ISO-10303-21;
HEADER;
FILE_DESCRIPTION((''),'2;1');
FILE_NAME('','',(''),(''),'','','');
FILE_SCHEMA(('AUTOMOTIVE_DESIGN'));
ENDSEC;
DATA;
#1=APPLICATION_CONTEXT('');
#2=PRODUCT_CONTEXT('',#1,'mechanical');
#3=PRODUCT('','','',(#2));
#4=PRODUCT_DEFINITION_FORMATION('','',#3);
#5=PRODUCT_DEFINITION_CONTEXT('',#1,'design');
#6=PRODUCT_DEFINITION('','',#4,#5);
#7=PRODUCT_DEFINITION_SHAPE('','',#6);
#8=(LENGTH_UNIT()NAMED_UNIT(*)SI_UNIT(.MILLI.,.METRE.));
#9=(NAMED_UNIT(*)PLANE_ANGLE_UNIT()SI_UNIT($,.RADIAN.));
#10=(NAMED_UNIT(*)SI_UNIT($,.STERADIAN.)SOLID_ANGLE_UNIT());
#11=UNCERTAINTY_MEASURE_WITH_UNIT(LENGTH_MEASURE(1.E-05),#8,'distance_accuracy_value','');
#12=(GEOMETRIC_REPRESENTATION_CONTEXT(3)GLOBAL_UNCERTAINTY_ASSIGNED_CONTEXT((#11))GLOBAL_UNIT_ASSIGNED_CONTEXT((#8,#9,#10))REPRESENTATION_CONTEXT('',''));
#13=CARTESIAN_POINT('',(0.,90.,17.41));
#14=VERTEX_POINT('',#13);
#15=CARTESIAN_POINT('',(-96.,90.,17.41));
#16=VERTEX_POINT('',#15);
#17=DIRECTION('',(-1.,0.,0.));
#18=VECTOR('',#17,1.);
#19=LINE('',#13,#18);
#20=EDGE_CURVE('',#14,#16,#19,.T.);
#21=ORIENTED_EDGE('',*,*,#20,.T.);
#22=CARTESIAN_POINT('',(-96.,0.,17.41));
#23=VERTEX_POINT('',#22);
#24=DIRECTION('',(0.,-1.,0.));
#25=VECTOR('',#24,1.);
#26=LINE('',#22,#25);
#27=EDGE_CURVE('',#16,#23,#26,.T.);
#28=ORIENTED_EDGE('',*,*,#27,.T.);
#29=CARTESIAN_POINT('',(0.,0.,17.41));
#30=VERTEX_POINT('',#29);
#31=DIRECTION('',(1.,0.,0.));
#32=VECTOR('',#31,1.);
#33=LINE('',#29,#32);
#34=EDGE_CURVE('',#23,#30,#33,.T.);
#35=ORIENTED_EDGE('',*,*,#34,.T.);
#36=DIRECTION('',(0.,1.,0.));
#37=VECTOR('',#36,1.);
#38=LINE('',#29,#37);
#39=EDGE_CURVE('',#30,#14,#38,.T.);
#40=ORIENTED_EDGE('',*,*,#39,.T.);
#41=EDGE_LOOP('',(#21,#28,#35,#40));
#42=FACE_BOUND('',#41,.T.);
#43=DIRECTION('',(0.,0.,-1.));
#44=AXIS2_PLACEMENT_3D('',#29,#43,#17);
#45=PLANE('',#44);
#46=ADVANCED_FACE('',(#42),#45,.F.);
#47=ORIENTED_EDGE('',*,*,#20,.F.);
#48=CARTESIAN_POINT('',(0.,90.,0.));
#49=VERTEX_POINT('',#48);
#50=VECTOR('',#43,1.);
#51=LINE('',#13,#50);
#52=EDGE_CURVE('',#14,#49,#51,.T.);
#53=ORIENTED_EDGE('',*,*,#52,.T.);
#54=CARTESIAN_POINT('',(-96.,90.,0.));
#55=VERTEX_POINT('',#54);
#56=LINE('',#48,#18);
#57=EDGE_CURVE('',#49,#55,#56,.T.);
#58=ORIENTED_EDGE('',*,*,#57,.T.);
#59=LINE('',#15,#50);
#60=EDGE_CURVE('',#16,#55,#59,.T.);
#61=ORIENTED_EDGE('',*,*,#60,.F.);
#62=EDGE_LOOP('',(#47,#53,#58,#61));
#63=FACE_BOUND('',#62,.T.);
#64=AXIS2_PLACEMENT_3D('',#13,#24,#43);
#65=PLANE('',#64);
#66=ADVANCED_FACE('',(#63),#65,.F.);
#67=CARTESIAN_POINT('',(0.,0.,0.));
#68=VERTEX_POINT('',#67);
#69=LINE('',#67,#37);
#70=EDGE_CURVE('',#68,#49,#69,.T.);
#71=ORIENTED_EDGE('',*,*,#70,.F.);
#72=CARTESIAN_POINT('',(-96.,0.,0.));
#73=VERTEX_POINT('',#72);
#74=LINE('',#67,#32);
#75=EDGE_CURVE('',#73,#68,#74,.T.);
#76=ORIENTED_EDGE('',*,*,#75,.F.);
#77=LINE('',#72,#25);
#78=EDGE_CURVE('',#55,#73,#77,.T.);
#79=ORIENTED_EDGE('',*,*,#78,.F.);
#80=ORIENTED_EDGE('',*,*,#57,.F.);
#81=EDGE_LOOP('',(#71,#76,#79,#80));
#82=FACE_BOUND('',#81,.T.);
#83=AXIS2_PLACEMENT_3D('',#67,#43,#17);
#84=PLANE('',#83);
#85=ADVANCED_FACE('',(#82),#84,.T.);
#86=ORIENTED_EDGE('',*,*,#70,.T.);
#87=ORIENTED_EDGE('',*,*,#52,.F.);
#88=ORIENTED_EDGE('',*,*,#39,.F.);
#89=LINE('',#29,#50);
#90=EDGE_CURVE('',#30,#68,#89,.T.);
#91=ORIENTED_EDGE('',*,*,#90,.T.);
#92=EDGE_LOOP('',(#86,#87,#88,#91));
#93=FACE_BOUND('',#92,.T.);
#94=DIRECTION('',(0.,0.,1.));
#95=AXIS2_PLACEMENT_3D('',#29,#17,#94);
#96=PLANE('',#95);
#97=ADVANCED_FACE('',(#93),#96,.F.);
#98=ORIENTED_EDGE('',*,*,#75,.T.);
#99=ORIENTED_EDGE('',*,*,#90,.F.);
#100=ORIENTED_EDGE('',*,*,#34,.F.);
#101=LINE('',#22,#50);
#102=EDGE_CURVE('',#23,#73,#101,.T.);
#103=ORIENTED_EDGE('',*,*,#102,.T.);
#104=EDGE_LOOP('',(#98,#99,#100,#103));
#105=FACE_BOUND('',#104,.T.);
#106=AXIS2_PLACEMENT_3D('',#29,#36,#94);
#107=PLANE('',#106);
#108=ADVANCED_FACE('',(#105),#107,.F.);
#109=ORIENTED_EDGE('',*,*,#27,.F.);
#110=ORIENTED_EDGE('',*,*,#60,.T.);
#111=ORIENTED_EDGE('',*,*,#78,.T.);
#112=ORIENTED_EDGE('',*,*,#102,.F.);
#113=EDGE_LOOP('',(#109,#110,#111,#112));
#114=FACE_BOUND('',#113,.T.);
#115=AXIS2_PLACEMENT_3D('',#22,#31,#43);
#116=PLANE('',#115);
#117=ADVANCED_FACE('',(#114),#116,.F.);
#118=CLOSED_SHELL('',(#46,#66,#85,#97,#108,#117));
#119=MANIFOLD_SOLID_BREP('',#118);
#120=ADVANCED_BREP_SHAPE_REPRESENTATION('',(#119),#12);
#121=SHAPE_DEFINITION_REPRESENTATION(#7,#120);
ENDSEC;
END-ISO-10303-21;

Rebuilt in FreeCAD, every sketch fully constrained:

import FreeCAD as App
import Part
import Sketcher
from FreeCAD import Vector
Q = App.Units.Quantity

doc = App.newDocument("Part")
body = doc.addObject("PartDesign::Body", "Body")

# Sketch on XY plane
sketch1 = body.newObject("Sketcher::SketchObject", "Sketch")
sketch1.AttachmentSupport = (doc.getObject("XY_Plane"), [""])
sketch1.MapMode = "FlatFace"
sketch1.addGeometry(Part.LineSegment(Vector(-96, 0, 0), Vector(0, 0, 0)), False)
sketch1.addGeometry(Part.LineSegment(Vector(0, 0, 0), Vector(0, 90, 0)), False)
sketch1.addGeometry(Part.LineSegment(Vector(0, 90, 0), Vector(-96, 90, 0)), False)
sketch1.addGeometry(Part.LineSegment(Vector(-96, 90, 0), Vector(-96, 0, 0)), False)
sketch1.addConstraint(Sketcher.Constraint("Coincident", 0, 2, 1, 1))
sketch1.addConstraint(Sketcher.Constraint("Coincident", 1, 2, 2, 1))
sketch1.addConstraint(Sketcher.Constraint("Coincident", 2, 2, 3, 1))
sketch1.addConstraint(Sketcher.Constraint("Coincident", 3, 2, 0, 1))
sketch1.addConstraint(Sketcher.Constraint("Horizontal", 0))
sketch1.addConstraint(Sketcher.Constraint("Vertical", 1))
sketch1.addConstraint(Sketcher.Constraint("Horizontal", 2))
sketch1.addConstraint(Sketcher.Constraint("Vertical", 3))
sketch1.addConstraint(Sketcher.Constraint("Coincident", 0, 2, -1, 1))
sketch1.addConstraint(Sketcher.Constraint("DistanceX", 0, 1, 0, 2, Q("96 mm")))
sketch1.addConstraint(Sketcher.Constraint("DistanceY", 1, 1, 1, 2, Q("90 mm")))
pad1 = body.newObject("PartDesign::Pad", "Pad")
pad1.Profile = sketch1
pad1.Length = 17.41

doc.recompute()
